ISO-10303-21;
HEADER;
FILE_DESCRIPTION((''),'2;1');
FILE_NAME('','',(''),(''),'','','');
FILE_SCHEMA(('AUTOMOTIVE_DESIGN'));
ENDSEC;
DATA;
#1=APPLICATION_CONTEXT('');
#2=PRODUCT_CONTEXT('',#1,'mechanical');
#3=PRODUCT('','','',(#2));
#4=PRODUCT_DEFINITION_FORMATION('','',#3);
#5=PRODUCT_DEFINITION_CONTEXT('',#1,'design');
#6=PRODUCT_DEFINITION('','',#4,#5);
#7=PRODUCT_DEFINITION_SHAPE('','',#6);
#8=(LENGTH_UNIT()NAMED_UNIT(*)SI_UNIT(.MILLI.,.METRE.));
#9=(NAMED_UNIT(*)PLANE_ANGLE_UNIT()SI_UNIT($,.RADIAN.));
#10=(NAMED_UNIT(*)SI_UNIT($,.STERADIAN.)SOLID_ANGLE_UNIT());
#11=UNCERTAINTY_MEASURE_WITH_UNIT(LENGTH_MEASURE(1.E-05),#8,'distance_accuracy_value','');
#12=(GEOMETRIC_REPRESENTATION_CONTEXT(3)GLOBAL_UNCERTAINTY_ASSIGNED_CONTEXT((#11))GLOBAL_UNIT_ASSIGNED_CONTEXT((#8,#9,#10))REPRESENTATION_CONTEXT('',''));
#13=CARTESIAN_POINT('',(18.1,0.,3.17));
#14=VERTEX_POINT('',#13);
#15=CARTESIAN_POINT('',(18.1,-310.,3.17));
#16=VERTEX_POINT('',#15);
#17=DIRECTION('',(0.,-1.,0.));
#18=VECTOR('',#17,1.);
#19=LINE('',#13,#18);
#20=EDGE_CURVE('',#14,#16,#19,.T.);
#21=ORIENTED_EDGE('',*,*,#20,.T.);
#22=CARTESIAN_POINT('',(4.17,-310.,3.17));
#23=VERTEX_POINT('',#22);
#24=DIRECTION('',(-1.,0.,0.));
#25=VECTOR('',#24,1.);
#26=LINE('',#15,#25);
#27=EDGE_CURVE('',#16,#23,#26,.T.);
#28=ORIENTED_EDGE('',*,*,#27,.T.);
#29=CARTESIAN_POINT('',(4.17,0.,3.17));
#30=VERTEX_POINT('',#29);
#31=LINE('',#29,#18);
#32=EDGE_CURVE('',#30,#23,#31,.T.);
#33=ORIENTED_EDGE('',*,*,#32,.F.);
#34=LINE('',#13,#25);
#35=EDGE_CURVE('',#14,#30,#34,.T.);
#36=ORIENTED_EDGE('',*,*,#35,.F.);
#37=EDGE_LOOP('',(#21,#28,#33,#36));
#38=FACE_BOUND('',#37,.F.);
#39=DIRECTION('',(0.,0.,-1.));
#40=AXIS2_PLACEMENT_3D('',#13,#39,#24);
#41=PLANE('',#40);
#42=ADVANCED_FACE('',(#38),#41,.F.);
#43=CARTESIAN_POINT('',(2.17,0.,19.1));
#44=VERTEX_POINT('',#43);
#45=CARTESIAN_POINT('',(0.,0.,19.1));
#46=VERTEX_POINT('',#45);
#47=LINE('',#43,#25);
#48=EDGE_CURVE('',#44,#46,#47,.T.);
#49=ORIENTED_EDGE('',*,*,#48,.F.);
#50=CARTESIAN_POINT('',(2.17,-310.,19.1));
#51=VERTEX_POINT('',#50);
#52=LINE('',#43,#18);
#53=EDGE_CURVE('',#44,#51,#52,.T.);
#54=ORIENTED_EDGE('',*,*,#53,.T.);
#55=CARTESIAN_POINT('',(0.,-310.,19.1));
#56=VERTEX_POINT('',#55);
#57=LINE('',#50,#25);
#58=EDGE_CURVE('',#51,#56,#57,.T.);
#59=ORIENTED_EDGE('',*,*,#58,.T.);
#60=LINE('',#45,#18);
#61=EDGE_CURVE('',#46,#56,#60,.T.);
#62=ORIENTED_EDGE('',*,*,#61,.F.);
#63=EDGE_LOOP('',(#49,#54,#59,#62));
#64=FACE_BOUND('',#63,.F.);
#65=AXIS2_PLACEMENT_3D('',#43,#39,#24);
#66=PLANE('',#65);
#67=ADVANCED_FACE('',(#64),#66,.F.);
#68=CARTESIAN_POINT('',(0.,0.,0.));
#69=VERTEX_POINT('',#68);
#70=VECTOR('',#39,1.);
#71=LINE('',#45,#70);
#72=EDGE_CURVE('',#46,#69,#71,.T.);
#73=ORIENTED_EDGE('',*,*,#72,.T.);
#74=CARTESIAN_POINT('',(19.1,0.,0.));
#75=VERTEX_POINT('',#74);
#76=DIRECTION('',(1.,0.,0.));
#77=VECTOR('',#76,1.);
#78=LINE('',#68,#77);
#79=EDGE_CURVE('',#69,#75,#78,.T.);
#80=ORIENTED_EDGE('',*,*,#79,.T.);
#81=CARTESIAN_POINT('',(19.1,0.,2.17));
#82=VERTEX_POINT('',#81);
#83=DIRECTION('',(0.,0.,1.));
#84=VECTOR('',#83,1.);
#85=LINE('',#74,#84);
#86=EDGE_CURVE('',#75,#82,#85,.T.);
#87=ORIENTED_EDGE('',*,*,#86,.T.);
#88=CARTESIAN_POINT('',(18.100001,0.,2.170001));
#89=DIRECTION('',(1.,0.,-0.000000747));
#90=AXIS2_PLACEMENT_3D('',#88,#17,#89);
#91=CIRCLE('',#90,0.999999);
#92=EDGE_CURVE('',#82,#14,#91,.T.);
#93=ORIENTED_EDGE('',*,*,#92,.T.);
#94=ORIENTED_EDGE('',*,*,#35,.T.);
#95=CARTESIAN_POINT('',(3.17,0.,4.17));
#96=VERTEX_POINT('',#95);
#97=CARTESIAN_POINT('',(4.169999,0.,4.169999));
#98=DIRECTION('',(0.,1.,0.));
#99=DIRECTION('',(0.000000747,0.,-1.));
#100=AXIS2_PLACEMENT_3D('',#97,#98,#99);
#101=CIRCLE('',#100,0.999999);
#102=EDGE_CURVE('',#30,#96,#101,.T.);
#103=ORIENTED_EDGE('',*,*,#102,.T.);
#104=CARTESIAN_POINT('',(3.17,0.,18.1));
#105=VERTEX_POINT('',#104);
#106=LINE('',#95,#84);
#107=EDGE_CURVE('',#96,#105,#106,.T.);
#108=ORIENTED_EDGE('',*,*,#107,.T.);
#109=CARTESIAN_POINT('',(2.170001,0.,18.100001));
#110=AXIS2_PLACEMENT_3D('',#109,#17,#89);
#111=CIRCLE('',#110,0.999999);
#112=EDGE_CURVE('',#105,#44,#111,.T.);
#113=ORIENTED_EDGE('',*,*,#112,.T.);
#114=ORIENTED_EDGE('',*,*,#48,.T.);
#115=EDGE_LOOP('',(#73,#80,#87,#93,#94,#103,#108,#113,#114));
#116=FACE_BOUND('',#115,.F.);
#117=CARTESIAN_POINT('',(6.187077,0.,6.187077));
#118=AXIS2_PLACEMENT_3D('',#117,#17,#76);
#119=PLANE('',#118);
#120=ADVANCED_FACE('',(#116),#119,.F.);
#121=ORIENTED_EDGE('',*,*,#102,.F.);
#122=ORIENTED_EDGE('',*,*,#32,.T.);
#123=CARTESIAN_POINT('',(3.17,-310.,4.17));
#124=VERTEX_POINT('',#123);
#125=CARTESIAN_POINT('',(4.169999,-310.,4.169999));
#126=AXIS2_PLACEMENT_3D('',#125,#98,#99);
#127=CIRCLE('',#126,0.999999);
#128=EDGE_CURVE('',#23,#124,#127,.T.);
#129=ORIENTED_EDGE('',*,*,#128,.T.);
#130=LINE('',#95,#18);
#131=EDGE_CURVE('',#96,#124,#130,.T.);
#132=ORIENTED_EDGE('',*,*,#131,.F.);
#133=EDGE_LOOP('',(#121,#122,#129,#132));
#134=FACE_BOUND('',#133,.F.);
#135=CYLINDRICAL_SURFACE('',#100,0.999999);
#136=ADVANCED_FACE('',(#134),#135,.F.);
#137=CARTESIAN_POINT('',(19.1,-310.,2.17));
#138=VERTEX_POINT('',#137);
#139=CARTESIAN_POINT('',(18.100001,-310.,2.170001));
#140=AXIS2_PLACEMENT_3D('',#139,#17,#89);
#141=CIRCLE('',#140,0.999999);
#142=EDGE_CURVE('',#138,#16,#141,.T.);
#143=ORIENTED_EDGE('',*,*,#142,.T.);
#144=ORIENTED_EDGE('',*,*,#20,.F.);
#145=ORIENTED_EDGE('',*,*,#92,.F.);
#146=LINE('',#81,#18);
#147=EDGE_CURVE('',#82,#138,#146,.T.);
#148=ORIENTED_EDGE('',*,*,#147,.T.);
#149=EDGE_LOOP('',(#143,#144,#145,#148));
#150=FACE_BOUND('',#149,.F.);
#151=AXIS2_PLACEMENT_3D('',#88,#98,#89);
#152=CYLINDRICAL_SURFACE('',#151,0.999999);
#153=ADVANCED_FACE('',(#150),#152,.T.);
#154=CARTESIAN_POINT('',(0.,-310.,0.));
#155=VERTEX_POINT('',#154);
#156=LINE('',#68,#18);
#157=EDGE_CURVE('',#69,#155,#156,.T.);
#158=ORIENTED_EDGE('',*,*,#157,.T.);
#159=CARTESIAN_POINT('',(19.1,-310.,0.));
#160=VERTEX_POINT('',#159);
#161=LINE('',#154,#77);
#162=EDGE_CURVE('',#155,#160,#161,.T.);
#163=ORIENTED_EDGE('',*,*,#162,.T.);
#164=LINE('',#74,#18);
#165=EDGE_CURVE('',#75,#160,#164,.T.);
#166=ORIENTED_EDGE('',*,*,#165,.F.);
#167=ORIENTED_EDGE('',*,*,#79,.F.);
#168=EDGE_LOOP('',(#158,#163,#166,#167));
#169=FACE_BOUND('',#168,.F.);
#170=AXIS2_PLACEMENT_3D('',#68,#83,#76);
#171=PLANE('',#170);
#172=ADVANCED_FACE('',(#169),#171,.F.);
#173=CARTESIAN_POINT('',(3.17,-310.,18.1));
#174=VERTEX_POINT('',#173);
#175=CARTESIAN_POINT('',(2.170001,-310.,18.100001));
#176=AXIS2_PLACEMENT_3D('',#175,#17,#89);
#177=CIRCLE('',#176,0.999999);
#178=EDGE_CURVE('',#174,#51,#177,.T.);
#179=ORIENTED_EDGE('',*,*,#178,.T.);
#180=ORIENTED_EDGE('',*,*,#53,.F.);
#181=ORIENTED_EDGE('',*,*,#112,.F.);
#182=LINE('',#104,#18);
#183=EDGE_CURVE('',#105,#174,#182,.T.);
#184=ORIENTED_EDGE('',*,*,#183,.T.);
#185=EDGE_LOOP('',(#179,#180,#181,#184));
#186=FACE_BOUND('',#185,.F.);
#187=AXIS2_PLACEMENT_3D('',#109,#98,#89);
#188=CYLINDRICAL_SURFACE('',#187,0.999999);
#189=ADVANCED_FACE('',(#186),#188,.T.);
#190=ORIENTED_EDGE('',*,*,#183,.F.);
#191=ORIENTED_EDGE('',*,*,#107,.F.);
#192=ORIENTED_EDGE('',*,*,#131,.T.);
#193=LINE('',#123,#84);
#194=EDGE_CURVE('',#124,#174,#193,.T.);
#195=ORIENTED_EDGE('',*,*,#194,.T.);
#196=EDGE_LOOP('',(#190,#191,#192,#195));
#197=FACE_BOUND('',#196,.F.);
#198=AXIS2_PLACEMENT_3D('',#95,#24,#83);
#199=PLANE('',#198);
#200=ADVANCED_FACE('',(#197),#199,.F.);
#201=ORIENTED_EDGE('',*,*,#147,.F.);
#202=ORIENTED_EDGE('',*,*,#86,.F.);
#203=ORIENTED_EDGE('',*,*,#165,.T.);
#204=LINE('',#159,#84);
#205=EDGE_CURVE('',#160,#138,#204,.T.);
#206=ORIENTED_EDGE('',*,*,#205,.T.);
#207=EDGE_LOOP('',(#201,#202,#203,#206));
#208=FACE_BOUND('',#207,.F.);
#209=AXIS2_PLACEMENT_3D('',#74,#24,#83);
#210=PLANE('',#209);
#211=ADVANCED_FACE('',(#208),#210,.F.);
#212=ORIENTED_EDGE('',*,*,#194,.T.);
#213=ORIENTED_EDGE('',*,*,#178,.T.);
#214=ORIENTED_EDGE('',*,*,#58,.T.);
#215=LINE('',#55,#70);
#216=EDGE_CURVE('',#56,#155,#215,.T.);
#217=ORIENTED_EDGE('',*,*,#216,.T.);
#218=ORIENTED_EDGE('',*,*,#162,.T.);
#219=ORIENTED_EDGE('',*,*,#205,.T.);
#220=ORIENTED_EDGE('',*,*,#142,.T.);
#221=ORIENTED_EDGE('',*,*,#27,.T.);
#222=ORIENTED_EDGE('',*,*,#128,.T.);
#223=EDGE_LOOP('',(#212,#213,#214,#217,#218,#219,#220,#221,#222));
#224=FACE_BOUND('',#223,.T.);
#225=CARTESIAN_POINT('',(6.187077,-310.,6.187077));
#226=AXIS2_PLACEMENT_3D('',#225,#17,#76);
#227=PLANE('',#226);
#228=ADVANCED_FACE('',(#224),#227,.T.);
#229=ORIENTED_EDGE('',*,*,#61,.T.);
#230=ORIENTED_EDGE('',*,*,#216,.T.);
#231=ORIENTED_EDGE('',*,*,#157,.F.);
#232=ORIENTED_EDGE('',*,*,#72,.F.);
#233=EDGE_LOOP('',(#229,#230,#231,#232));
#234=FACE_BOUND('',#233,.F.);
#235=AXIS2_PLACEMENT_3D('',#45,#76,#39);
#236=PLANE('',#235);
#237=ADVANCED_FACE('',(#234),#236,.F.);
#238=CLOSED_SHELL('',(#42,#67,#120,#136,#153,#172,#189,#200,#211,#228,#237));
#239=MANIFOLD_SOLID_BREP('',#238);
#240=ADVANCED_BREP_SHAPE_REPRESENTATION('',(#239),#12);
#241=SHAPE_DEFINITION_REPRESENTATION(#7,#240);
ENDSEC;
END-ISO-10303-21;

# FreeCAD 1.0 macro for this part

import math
import FreeCAD as App
import Part
import Sketcher

V = App.Vector
Q = App.Units.Quantity

doc = App.newDocument("Part")
body = doc.addObject("PartDesign::Body", "Body")

# Sketch on XZ plane
sketch1 = doc.addObject("Sketcher::SketchObject", "Sketch")
body.addObject(sketch1)
sketch1.AttachmentSupport = (doc.XZ_Plane, [""])
sketch1.MapMode = "FlatFace"
sketch1.addGeometry(Part.LineSegment(V(2.2, 19.1, 0), V(0, 19.1, 0)), False)
sketch1.addGeometry(Part.LineSegment(V(0, 19.1, 0), V(0, 0, 0)), False)
sketch1.addGeometry(Part.LineSegment(V(0, 0, 0), V(19.1, 0, 0)), False)
sketch1.addGeometry(Part.LineSegment(V(19.1, 0, 0), V(19.1, 2.2, 0)), False)
sketch1.addGeometry(Part.ArcOfCircle(Part.Circle(V(18.1, 2.2, 0), V(0, 0, 1), 1), math.radians(0), math.radians(90)), False)
sketch1.addGeometry(Part.LineSegment(V(18.1, 3.2, 0), V(4.2, 3.2, 0)), False)
sketch1.addGeometry(Part.ArcOfCircle(Part.Circle(V(4.2, 4.2, 0), V(0, 0, 1), 1), math.radians(180), math.radians(270)), False)
sketch1.addGeometry(Part.LineSegment(V(3.2, 4.2, 0), V(3.2, 18.1, 0)), False)
sketch1.addGeometry(Part.ArcOfCircle(Part.Circle(V(2.2, 18.1, 0), V(0, 0, 1), 1), math.radians(0), math.radians(90)), False)
sketch1.addConstraint(Sketcher.Constraint("Coincident", 0, 2, 1, 1))
sketch1.addConstraint(Sketcher.Constraint("Coincident", 1, 2, 2, 1))
sketch1.addConstraint(Sketcher.Constraint("Coincident", 2, 2, 3, 1))
sketch1.addConstraint(Sketcher.Constraint("Tangent", 3, 2, 4, 1))
sketch1.addConstraint(Sketcher.Constraint("Tangent", 4, 2, 5, 1))
sketch1.addConstraint(Sketcher.Constraint("Tangent", 5, 2, 6, 2))
sketch1.addConstraint(Sketcher.Constraint("Tangent", 6, 1, 7, 1))
sketch1.addConstraint(Sketcher.Constraint("Tangent", 7, 2, 8, 1))
sketch1.addConstraint(Sketcher.Constraint("Tangent", 8, 2, 0, 1))
sketch1.addConstraint(Sketcher.Constraint("Horizontal", 0))
sketch1.addConstraint(Sketcher.Constraint("Vertical", 1))
sketch1.addConstraint(Sketcher.Constraint("Horizontal", 2))
sketch1.addConstraint(Sketcher.Constraint("Vertical", 3))
sketch1.addConstraint(Sketcher.Constraint("Horizontal", 5))
sketch1.addConstraint(Sketcher.Constraint("Vertical", 7))
sketch1.addConstraint(Sketcher.Constraint("Coincident", 1, 2, -1, 1))
sketch1.addConstraint(Sketcher.Constraint("Equal", 4, 6))
sketch1.addConstraint(Sketcher.Constraint("Equal", 6, 8))
sketch1.addConstraint(Sketcher.Constraint("Equal", 2, 1))
sketch1.addConstraint(Sketcher.Constraint("Equal", 0, 3))
sketch1.addConstraint(Sketcher.Constraint("Radius", 4, Q("0.999999 mm")))
sketch1.addConstraint(Sketcher.Constraint("DistanceX", 2, 1, 2, 2, Q("19.1 mm")))
sketch1.addConstraint(Sketcher.Constraint("DistanceX", 0, 2, 0, 1, Q("2.17 mm")))
pad1 = doc.addObject("PartDesign::Pad", "Pad")
body.addObject(pad1)
pad1.Profile = sketch1
pad1.Length = 310

doc.recompute()
